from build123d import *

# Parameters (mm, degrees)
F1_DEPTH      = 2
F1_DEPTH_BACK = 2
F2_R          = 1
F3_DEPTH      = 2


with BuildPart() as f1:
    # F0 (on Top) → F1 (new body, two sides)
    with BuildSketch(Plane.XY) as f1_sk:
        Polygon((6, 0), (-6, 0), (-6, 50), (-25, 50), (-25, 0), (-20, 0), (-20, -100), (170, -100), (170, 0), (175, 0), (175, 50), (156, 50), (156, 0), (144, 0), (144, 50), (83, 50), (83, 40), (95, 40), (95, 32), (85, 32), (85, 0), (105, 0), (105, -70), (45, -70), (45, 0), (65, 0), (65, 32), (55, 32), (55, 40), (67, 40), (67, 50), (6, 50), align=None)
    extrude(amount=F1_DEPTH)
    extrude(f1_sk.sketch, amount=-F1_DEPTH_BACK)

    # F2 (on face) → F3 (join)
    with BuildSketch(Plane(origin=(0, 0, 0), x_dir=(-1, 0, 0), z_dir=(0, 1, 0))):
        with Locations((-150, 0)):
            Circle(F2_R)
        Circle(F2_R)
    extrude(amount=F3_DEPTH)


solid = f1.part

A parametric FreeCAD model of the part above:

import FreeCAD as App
import Part
import Sketcher
Q = App.Units.Quantity


def add_polygon(sketch, points):
    """Adds a closed chain of lines whose ends are joined by coincident constraints."""
    first, n = sketch.GeometryCount, len(points)
    for a, b in zip(points, points[1:] + points[:1]):
        sketch.addGeometry(Part.LineSegment(App.Vector(*a, 0), App.Vector(*b, 0)), False)
    for i in range(n):
        sketch.addConstraint(Sketcher.Constraint("Coincident", first + i, 2, first + (i + 1) % n, 1))

doc = App.newDocument("Part")
params = doc.addObject("Spreadsheet::Sheet", "Params")
for row, (alias, value) in enumerate([
    ("sketch1_width", "12 mm"),
    ("sketch1_width2", "19 mm"),
    ("sketch1_width3", "5 mm"),
    ("sketch1_width4", "190 mm"),
    ("sketch1_width5", "61 mm"),
    ("pad1_length", "2 mm"),
    ("pad1_length2", "2 mm"),
    ("sketch2_diameter", "2 mm"),
    ("pad2_length", "2 mm"),
], start=1):
    params.set(f"A{row}", alias)
    params.set(f"B{row}", "=" + value)
    params.setAlias(f"B{row}", alias)

body = doc.addObject("PartDesign::Body", "Body")

sketch1 = body.newObject("Sketcher::SketchObject", "Sketch")
sketch1.AttachmentSupport = (doc.getObject("XY_Plane"), [""])
sketch1.MapMode = "FlatFace"
add_polygon(sketch1, [(6, 0), (-6, 0), (-6, 50), (-25, 50), (-25, 0), (-20, 0), (-20, -100), (170, -100), (170, 0), (175, 0), (175, 50), (156, 50), (156, 0), (144, 0), (144, 50), (83, 50), (83, 40), (95, 40), (95, 32), (85, 32), (85, 0), (105, 0), (105, -70), (45, -70), (45, 0), (65, 0), (65, 32), (55, 32), (55, 40), (67, 40), (67, 50), (6, 50)])
sketch1.addConstraint(Sketcher.Constraint("Horizontal", 0))
sketch1.addConstraint(Sketcher.Constraint("Vertical", 1))
sketch1.addConstraint(Sketcher.Constraint("Horizontal", 2))
sketch1.addConstraint(Sketcher.Constraint("Vertical", 3))
sketch1.addConstraint(Sketcher.Constraint("Horizontal", 4))
sketch1.addConstraint(Sketcher.Constraint("Vertical", 5))
sketch1.addConstraint(Sketcher.Constraint("Horizontal", 6))
sketch1.addConstraint(Sketcher.Constraint("Vertical", 7))
sketch1.addConstraint(Sketcher.Constraint("Horizontal", 8))
sketch1.addConstraint(Sketcher.Constraint("Vertical", 9))
sketch1.addConstraint(Sketcher.Constraint("Horizontal", 10))
sketch1.addConstraint(Sketcher.Constraint("Vertical", 11))
sketch1.addConstraint(Sketcher.Constraint("Horizontal", 12))
sketch1.addConstraint(Sketcher.Constraint("Vertical", 13))
sketch1.addConstraint(Sketcher.Constraint("Horizontal", 14))
sketch1.addConstraint(Sketcher.Constraint("Vertical", 15))
sketch1.addConstraint(Sketcher.Constraint("Horizontal", 16))
sketch1.addConstraint(Sketcher.Constraint("Vertical", 17))
sketch1.addConstraint(Sketcher.Constraint("Horizontal", 18))
sketch1.addConstraint(Sketcher.Constraint("Vertical", 19))
sketch1.addConstraint(Sketcher.Constraint("Horizontal", 20))
sketch1.addConstraint(Sketcher.Constraint("Vertical", 21))
sketch1.addConstraint(Sketcher.Constraint("Horizontal", 22))
sketch1.addConstraint(Sketcher.Constraint("Vertical", 23))
sketch1.addConstraint(Sketcher.Constraint("Horizontal", 24))
sketch1.addConstraint(Sketcher.Constraint("Vertical", 25))
sketch1.addConstraint(Sketcher.Constraint("Horizontal", 26))
sketch1.addConstraint(Sketcher.Constraint("Vertical", 27))
sketch1.addConstraint(Sketcher.Constraint("Horizontal", 28))
sketch1.addConstraint(Sketcher.Constraint("Vertical", 29))
sketch1.addConstraint(Sketcher.Constraint("Horizontal", 30))
sketch1.addConstraint(Sketcher.Constraint("Vertical", 31))
sketch1.addConstraint(Sketcher.Constraint("Symmetric", 0, 2, 31, 2, -1, 1))
sketch1.addConstraint(Sketcher.Constraint("PointOnObject", 3, 2, -1))
sketch1.addConstraint(Sketcher.Constraint("PointOnObject", 7, 2, -1))
sketch1.addConstraint(Sketcher.Constraint("PointOnObject", 11, 2, -1))
sketch1.addConstraint(Sketcher.Constraint("PointOnObject", 19, 2, -1))
sketch1.addConstraint(Sketcher.Constraint("PointOnObject", 23, 2, -1))
sketch1.addConstraint(Sketcher.Constraint("Horizontal", 2, 2, 9, 2))
sketch1.addConstraint(Sketcher.Constraint("Horizontal", 10, 2, 13, 2))
sketch1.addConstraint(Sketcher.Constraint("Horizontal", 18, 2, 25, 2))
sketch1.addConstraint(Sketcher.Constraint("Horizontal", 16, 2, 27, 2))
sketch1.addConstraint(Sketcher.Constraint("Horizontal", 14, 2, 29, 2))
sketch1.addConstraint(Sketcher.Constraint("Equal", 4, 8))
sketch1.addConstraint(Sketcher.Constraint("Equal", 2, 10))
sketch1.addConstraint(Sketcher.Constraint("Equal", 0, 12))
sketch1.addConstraint(Sketcher.Constraint("Equal", 12, 16))
sketch1.addConstraint(Sketcher.Constraint("Equal", 20, 24))
sketch1.addConstraint(Sketcher.Constraint("Equal", 18, 26))
sketch1.addConstraint(Sketcher.Constraint("Equal", 16, 28))
sketch1.addConstraint(Sketcher.Constraint("Equal", 14, 30))
sketch1.addConstraint(Sketcher.Constraint("Equal", 26, 15))
sketch1.addConstraint(Sketcher.Constraint("DistanceX", 0, 2, 0, 1, Q("12 mm")))
sketch1.addConstraint(Sketcher.Constraint("DistanceX", 2, 2, 2, 1, Q("19 mm")))
sketch1.addConstraint(Sketcher.Constraint("DistanceX", 4, 1, 4, 2, Q("5 mm")))
sketch1.addConstraint(Sketcher.Constraint("DistanceX", 6, 1, 6, 2, Q("190 mm")))
sketch1.addConstraint(Sketcher.Constraint("DistanceX", 14, 2, 14, 1, Q("61 mm")))
sketch1.addConstraint(Sketcher.Constraint("DistanceX", 18, 2, 18, 1, Q("10 mm")))
sketch1.addConstraint(Sketcher.Constraint("DistanceX", 20, 1, 20, 2, Q("20 mm")))
sketch1.addConstraint(Sketcher.Constraint("DistanceY", 1, 1, 1, 2, Q("50 mm")))
sketch1.addConstraint(Sketcher.Constraint("DistanceY", 5, 2, 5, 1, Q("100 mm")))
sketch1.addConstraint(Sketcher.Constraint("DistanceY", 17, 2, 17, 1, Q("8 mm")))
sketch1.addConstraint(Sketcher.Constraint("DistanceY", 21, 2, 21, 1, Q("70 mm")))
sketch1.setExpression("Constraints[84]", "Params.sketch1_width")
sketch1.setExpression("Constraints[85]", "Params.sketch1_width2")
sketch1.setExpression("Constraints[86]", "Params.sketch1_width3")
sketch1.setExpression("Constraints[87]", "Params.sketch1_width4")
sketch1.setExpression("Constraints[88]", "Params.sketch1_width5")
pad1 = body.newObject("PartDesign::Pad", "Pad")
pad1.Profile = sketch1
pad1.Type = "TwoLengths"
pad1.setExpression("Length", "Params.pad1_length")
pad1.setExpression("Length2", "Params.pad1_length2")

sketch2 = body.newObject("Sketcher::SketchObject", "Sketch001")
sketch2.AttachmentSupport = (doc.getObject("XZ_Plane"), [""])
sketch2.MapMode = "FlatFace"
sketch2.addGeometry(Part.Circle(App.Vector(150, 0, 0), App.Vector(0, 0, 1), 1), False)
sketch2.addGeometry(Part.Circle(App.Vector(0, 0, 0), App.Vector(0, 0, 1), 1), False)
sketch2.addConstraint(Sketcher.Constraint("Coincident", 1, 3, -1, 1))
sketch2.addConstraint(Sketcher.Constraint("Equal", 0, 1))
sketch2.addConstraint(Sketcher.Constraint("PointOnObject", 0, 3, -1))
sketch2.addConstraint(Sketcher.Constraint("Diameter", 0, Q("2 mm")))
sketch2.addConstraint(Sketcher.Constraint("DistanceX", -1, 1, 0, 3, Q("150 mm")))
sketch2.setExpression("Constraints[3]", "Params.sketch2_diameter")
pad2 = body.newObject("PartDesign::Pad", "Pad001")
pad2.Profile = sketch2
pad2.setExpression("Length", "Params.pad2_length")
pad2.Reversed = True

doc.recompute()
